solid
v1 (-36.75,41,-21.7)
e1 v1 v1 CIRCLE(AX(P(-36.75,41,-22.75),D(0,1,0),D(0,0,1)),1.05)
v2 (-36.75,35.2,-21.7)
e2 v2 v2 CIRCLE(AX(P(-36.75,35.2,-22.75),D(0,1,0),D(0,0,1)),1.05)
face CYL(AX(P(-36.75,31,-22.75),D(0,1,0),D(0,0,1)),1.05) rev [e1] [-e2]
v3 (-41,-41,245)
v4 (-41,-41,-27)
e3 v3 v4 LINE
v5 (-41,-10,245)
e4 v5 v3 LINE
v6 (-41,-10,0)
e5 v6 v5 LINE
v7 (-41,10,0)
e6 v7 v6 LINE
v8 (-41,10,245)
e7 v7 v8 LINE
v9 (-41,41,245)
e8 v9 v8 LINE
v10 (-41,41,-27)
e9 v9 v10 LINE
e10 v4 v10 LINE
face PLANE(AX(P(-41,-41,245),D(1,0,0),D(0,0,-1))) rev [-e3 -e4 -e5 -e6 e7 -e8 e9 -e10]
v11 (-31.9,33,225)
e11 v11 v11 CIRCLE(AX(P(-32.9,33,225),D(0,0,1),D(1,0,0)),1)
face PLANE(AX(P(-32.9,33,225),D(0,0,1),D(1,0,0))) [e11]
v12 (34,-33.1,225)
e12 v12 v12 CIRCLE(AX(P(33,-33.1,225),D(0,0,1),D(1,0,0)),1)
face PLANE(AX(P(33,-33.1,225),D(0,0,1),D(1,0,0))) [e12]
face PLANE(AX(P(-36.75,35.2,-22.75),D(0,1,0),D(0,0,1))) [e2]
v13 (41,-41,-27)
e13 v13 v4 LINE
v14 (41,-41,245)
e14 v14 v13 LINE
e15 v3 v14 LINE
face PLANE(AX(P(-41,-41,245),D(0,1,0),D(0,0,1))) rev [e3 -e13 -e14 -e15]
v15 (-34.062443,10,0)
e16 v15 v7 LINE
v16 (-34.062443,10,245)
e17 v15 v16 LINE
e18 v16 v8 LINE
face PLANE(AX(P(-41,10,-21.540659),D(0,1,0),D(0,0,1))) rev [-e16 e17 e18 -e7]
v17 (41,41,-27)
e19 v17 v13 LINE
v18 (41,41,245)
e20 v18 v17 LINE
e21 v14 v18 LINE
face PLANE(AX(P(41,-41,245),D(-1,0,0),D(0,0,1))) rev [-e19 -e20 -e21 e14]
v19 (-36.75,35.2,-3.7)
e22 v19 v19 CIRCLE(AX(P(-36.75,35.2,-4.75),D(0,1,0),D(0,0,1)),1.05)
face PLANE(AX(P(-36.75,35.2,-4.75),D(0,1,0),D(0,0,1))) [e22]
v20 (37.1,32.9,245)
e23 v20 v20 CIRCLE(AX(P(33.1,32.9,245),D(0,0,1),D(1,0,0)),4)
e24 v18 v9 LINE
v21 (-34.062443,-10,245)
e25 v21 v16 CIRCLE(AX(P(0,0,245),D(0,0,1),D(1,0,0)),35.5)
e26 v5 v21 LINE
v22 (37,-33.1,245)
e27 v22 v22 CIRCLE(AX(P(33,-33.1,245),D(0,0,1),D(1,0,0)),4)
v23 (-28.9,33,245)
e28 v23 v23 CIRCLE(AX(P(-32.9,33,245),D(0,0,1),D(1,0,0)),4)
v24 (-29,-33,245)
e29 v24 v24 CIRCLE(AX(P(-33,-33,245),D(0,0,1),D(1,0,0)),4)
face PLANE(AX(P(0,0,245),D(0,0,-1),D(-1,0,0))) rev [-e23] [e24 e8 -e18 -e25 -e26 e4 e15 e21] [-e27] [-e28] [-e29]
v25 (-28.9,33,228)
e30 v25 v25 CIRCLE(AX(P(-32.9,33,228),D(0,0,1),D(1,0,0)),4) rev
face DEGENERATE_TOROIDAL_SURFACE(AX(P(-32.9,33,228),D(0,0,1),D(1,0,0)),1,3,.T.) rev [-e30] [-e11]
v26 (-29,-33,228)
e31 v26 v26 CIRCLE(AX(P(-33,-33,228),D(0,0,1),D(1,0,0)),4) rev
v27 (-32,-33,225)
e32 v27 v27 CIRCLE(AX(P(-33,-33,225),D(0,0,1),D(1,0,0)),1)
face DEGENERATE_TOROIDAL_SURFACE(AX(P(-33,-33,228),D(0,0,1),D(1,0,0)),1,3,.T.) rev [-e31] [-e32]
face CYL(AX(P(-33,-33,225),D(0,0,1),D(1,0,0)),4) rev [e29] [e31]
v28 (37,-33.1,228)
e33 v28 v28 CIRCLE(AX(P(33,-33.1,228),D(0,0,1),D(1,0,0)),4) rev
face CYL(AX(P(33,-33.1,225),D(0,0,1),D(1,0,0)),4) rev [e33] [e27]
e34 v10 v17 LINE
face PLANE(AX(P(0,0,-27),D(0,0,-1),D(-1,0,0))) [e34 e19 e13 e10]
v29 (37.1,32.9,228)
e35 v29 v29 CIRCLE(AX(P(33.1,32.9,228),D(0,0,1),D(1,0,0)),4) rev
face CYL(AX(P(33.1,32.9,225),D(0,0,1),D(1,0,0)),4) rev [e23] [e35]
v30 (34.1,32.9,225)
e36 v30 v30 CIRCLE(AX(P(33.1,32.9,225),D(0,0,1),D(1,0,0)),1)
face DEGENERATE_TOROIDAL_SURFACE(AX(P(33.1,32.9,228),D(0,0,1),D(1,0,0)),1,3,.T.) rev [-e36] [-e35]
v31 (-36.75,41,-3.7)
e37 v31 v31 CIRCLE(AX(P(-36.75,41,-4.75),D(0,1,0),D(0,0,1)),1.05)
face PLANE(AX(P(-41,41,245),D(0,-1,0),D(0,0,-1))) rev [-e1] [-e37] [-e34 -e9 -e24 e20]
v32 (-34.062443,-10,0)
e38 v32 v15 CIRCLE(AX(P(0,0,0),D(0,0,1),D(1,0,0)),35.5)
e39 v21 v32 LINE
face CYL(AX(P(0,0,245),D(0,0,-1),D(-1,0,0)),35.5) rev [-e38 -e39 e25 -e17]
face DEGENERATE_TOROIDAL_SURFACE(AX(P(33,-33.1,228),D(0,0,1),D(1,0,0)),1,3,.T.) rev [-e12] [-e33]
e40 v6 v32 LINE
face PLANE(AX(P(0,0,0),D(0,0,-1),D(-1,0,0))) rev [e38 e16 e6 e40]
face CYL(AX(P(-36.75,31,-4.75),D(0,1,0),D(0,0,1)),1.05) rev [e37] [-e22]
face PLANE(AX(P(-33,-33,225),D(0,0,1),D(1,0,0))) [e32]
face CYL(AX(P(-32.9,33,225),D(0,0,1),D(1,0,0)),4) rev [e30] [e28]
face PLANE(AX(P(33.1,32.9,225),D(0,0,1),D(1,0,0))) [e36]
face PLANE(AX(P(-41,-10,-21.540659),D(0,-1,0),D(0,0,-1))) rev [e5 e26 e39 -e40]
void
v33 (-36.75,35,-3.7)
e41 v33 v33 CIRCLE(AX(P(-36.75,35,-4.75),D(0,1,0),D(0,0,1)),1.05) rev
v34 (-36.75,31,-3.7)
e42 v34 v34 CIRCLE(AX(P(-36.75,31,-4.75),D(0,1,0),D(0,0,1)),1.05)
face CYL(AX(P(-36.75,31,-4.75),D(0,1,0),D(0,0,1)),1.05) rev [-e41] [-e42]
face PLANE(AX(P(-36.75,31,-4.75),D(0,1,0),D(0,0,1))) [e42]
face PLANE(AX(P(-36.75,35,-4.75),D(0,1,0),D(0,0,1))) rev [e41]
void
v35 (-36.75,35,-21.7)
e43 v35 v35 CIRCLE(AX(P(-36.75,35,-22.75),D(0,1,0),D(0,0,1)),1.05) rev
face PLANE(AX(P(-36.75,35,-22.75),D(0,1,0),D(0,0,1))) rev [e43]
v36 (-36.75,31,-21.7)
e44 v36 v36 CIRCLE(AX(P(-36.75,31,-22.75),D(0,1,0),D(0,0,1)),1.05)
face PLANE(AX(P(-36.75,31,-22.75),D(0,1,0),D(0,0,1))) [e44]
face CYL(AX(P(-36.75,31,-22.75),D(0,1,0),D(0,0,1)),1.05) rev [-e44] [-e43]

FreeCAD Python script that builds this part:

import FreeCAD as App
import Part
import Sketcher
from FreeCAD import Vector
Q = App.Units.Quantity


def edges_at(feature, points):
    """Names of the edges that pass closest to the given points."""
    edges = feature.Shape.Edges
    near = lambda p: min(range(len(edges)), key=lambda i: edges[i].distToShape(Part.Vertex(*p))[0])
    return sorted({f"Edge{near(p) + 1}" for p in points})

doc = App.newDocument("Part")
body = doc.addObject("PartDesign::Body", "Body")

# Sketch on XY plane
sketch1 = body.newObject("Sketcher::SketchObject", "Sketch")
sketch1.AttachmentSupport = (doc.getObject("XY_Plane"), [""])
sketch1.MapMode = "FlatFace"
sketch1.addGeometry([
    Part.LineSegment(Vector(-41, 41, 0), Vector(-41, -41, 0)),  # 0
    Part.LineSegment(Vector(-41, -41, 0), Vector(41, -41, 0)),  # 1
    Part.LineSegment(Vector(41, -41, 0), Vector(41, 41, 0)),  # 2
    Part.LineSegment(Vector(41, 41, 0), Vector(-41, 41, 0)),  # 3
    Part.Circle(Vector(0, 0, 0), Vector(0, 0, 1), 35.5),  # 4
], False)
sketch1.addConstraint([
    Sketcher.Constraint("Coincident", 0, 2, 1, 1),
    Sketcher.Constraint("Coincident", 1, 2, 2, 1),
    Sketcher.Constraint("Coincident", 2, 2, 3, 1),
    Sketcher.Constraint("Coincident", 3, 2, 0, 1),
    Sketcher.Constraint("Vertical", 0),
    Sketcher.Constraint("Horizontal", 1),
    Sketcher.Constraint("Vertical", 2),
    Sketcher.Constraint("Horizontal", 3),
    Sketcher.Constraint("Coincident", 4, 3, -1, 1),
    Sketcher.Constraint("Symmetric", 0, 2, 2, 2, -1, 1),
    Sketcher.Constraint("Equal", 3, 0),
    Sketcher.Constraint("Diameter", 4, Q("71 mm")),
    Sketcher.Constraint("DistanceX", 1, 1, 1, 2, Q("82 mm")),
])
pad1 = body.newObject("PartDesign::Pad", "Pad")
pad1.Profile = sketch1
pad1.Length = 245

# Sketch on XY plane
sketch2 = body.newObject("Sketcher::SketchObject", "Sketch001")
sketch2.AttachmentSupport = (doc.getObject("XY_Plane"), [""])
sketch2.MapMode = "FlatFace"
sketch2.addGeometry([
    Part.LineSegment(Vector(41, 41, 0), Vector(41, -41, 0)),
    Part.LineSegment(Vector(41, -41, 0), Vector(-41, -41, 0)),
    Part.LineSegment(Vector(-41, -41, 0), Vector(-41, 41, 0)),
    Part.LineSegment(Vector(-41, 41, 0), Vector(41, 41, 0)),
], False)
sketch2.addConstraint([
    Sketcher.Constraint("Coincident", 0, 2, 1, 1),
    Sketcher.Constraint("Coincident", 1, 2, 2, 1),
    Sketcher.Constraint("Coincident", 2, 2, 3, 1),
    Sketcher.Constraint("Coincident", 3, 2, 0, 1),
    Sketcher.Constraint("Vertical", 0),
    Sketcher.Constraint("Horizontal", 1),
    Sketcher.Constraint("Vertical", 2),
    Sketcher.Constraint("Horizontal", 3),
    Sketcher.Constraint("Symmetric", 0, 2, 2, 2, -1, 1),
    Sketcher.Constraint("Equal", 3, 0),
    Sketcher.Constraint("DistanceX", 1, 2, 1, 1, Q("82 mm")),
])
pad2 = body.newObject("PartDesign::Pad", "Pad001")
pad2.Profile = sketch2
pad2.Length = 27
pad2.Reversed = True

# Sketch on XY plane
sketch3 = body.newObject("Sketcher::SketchObject", "Sketch002")
sketch3.AttachmentSupport = (doc.getObject("XY_Plane"), [""])
sketch3.MapMode = "FlatFace"
sketch3.AttachmentOffset = App.Placement(Vector(0, 0, 245), App.Rotation())
sketch3.addGeometry([
    Part.LineSegment(Vector(-41, 10, 0), Vector(-41, -10, 0)),
    Part.LineSegment(Vector(-41, -10, 0), Vector(-33, -10, 0)),
    Part.LineSegment(Vector(-33, -10, 0), Vector(-33, 10, 0)),
    Part.LineSegment(Vector(-33, 10, 0), Vector(-41, 10, 0)),
], False)
sketch3.addConstraint([
    Sketcher.Constraint("Coincident", 0, 2, 1, 1),
    Sketcher.Constraint("Coincident", 1, 2, 2, 1),
    Sketcher.Constraint("Coincident", 2, 2, 3, 1),
    Sketcher.Constraint("Coincident", 3, 2, 0, 1),
    Sketcher.Constraint("Vertical", 0),
    Sketcher.Constraint("Horizontal", 1),
    Sketcher.Constraint("Vertical", 2),
    Sketcher.Constraint("Horizontal", 3),
    Sketcher.Constraint("DistanceX", 1, 1, 1, 2, Q("8 mm")),
    Sketcher.Constraint("DistanceY", 0, 2, 0, 1, Q("20 mm")),
    Sketcher.Constraint("DistanceX", 0, 2, -1, 1, Q("41 mm")),
    Sketcher.Constraint("DistanceY", 0, 2, -1, 1, Q("10 mm")),
])
pocket1 = body.newObject("PartDesign::Pocket", "Pocket")
pocket1.Profile = sketch3
pocket1.Length = 245

# Sketch on XY plane
sketch4 = body.newObject("Sketcher::SketchObject", "Sketch003")
sketch4.AttachmentSupport = (doc.getObject("XY_Plane"), [""])
sketch4.MapMode = "FlatFace"
sketch4.AttachmentOffset = App.Placement(Vector(0, 0, 245), App.Rotation())
sketch4.addGeometry([
    Part.Circle(Vector(-32.9, 33, 0), Vector(0, 0, 1), 4),
    Part.Circle(Vector(33.1, 32.9, 0), Vector(0, 0, 1), 4),
    Part.Circle(Vector(33, -33.1, 0), Vector(0, 0, 1), 4),
    Part.Circle(Vector(-33, -33, 0), Vector(0, 0, 1), 4),
], False)
sketch4.addConstraint([
    Sketcher.Constraint("Equal", 0, 1),
    Sketcher.Constraint("Equal", 1, 2),
    Sketcher.Constraint("Equal", 2, 3),
    Sketcher.Constraint("Diameter", 0, Q("8 mm")),
    Sketcher.Constraint("DistanceY", -1, 1, 0, 3, Q("33 mm")),
    Sketcher.Constraint("DistanceX", -1, 1, 2, 3, Q("33 mm")),
    Sketcher.Constraint("DistanceX", 3, 3, -1, 1, Q("33 mm")),
    Sketcher.Constraint("DistanceY", 3, 3, -1, 1, Q("33 mm")),
    Sketcher.Constraint("DistanceX", 0, 3, 1, 3, Q("66 mm")),
    Sketcher.Constraint("DistanceY", 2, 3, 1, 3, Q("66 mm")),
    Sketcher.Constraint("DistanceX", 0, 3, -1, 1, Q("32.9 mm")),
    Sketcher.Constraint("DistanceY", -1, 1, 1, 3, Q("32.9 mm")),
])
pocket2 = body.newObject("PartDesign::Pocket", "Pocket001")
pocket2.Profile = sketch4
pocket2.Length = 20
doc.recompute()

fillet = body.newObject("PartDesign::Fillet", "Fillet")
fillet.Base = (pocket2, edges_at(pocket2, [(-36.9, 33, 225)]))
fillet.Radius = 3
doc.recompute()

fillet2 = body.newObject("PartDesign::Fillet", "Fillet001")
fillet2.Base = (fillet, edges_at(fillet, [(29.1, 32.9, 225)]))
fillet2.Radius = 3
doc.recompute()

fillet3 = body.newObject("PartDesign::Fillet", "Fillet002")
fillet3.Base = (fillet2, edges_at(fillet2, [(-37, -33, 225)]))
fillet3.Radius = 3
doc.recompute()

fillet4 = body.newObject("PartDesign::Fillet", "Fillet003")
fillet4.Base = (fillet3, edges_at(fillet3, [(29, -33.1, 225)]))
fillet4.Radius = 3

# Sketch on XZ plane
sketch5 = body.newObject("Sketcher::SketchObject", "Sketch004")
sketch5.AttachmentSupport = (doc.getObject("XZ_Plane"), [""])
sketch5.MapMode = "FlatFace"
sketch5.AttachmentOffset = App.Placement(Vector(0, 0, -41), App.Rotation())
sketch5.addGeometry([
    Part.Circle(Vector(-36.75, -22.75, 0), Vector(0, 0, 1), 1.05),
    Part.Circle(Vector(-36.75, -4.75, 0), Vector(0, 0, 1), 1.05),
], False)
sketch5.addConstraint([
    Sketcher.Constraint("Equal", 0, 1),
    Sketcher.Constraint("Vertical", 0, 3, 1, 3),
    Sketcher.Constraint("Diameter", 0, Q("2.1 mm")),
    Sketcher.Constraint("DistanceY", 0, 3, 1, 3, Q("18 mm")),
    Sketcher.Constraint("DistanceX", 0, 3, -1, 1, Q("36.75 mm")),
    Sketcher.Constraint("DistanceY", 0, 3, -1, 1, Q("22.75 mm")),
])
pocket3 = body.newObject("PartDesign::Pocket", "Pocket002")
pocket3.Profile = sketch5
pocket3.Length = 10
pocket3.Reversed = True

# Sketch on XZ plane
sketch6 = body.newObject("Sketcher::SketchObject", "Sketch005")
sketch6.AttachmentSupport = (doc.getObject("XZ_Plane"), [""])
sketch6.MapMode = "FlatFace"
sketch6.AttachmentOffset = App.Placement(Vector(0, 0, -35.2), App.Rotation())
sketch6.addGeometry([
    Part.Circle(Vector(-36.75, -22.75, 0), Vector(0, 0, 1), 1.05),
    Part.Circle(Vector(-36.75, -4.75, 0), Vector(0, 0, 1), 1.05),
], False)
sketch6.addConstraint([
    Sketcher.Constraint("Equal", 0, 1),
    Sketcher.Constraint("Vertical", 0, 3, 1, 3),
    Sketcher.Constraint("Diameter", 0, Q("2.1 mm")),
    Sketcher.Constraint("DistanceY", 0, 3, 1, 3, Q("18 mm")),
    Sketcher.Constraint("DistanceX", 0, 3, -1, 1, Q("36.75 mm")),
    Sketcher.Constraint("DistanceY", 0, 3, -1, 1, Q("22.75 mm")),
])
pad3 = body.newObject("PartDesign::Pad", "Pad002")
pad3.Profile = sketch6
pad3.Length = 0.2

doc.recompute()
